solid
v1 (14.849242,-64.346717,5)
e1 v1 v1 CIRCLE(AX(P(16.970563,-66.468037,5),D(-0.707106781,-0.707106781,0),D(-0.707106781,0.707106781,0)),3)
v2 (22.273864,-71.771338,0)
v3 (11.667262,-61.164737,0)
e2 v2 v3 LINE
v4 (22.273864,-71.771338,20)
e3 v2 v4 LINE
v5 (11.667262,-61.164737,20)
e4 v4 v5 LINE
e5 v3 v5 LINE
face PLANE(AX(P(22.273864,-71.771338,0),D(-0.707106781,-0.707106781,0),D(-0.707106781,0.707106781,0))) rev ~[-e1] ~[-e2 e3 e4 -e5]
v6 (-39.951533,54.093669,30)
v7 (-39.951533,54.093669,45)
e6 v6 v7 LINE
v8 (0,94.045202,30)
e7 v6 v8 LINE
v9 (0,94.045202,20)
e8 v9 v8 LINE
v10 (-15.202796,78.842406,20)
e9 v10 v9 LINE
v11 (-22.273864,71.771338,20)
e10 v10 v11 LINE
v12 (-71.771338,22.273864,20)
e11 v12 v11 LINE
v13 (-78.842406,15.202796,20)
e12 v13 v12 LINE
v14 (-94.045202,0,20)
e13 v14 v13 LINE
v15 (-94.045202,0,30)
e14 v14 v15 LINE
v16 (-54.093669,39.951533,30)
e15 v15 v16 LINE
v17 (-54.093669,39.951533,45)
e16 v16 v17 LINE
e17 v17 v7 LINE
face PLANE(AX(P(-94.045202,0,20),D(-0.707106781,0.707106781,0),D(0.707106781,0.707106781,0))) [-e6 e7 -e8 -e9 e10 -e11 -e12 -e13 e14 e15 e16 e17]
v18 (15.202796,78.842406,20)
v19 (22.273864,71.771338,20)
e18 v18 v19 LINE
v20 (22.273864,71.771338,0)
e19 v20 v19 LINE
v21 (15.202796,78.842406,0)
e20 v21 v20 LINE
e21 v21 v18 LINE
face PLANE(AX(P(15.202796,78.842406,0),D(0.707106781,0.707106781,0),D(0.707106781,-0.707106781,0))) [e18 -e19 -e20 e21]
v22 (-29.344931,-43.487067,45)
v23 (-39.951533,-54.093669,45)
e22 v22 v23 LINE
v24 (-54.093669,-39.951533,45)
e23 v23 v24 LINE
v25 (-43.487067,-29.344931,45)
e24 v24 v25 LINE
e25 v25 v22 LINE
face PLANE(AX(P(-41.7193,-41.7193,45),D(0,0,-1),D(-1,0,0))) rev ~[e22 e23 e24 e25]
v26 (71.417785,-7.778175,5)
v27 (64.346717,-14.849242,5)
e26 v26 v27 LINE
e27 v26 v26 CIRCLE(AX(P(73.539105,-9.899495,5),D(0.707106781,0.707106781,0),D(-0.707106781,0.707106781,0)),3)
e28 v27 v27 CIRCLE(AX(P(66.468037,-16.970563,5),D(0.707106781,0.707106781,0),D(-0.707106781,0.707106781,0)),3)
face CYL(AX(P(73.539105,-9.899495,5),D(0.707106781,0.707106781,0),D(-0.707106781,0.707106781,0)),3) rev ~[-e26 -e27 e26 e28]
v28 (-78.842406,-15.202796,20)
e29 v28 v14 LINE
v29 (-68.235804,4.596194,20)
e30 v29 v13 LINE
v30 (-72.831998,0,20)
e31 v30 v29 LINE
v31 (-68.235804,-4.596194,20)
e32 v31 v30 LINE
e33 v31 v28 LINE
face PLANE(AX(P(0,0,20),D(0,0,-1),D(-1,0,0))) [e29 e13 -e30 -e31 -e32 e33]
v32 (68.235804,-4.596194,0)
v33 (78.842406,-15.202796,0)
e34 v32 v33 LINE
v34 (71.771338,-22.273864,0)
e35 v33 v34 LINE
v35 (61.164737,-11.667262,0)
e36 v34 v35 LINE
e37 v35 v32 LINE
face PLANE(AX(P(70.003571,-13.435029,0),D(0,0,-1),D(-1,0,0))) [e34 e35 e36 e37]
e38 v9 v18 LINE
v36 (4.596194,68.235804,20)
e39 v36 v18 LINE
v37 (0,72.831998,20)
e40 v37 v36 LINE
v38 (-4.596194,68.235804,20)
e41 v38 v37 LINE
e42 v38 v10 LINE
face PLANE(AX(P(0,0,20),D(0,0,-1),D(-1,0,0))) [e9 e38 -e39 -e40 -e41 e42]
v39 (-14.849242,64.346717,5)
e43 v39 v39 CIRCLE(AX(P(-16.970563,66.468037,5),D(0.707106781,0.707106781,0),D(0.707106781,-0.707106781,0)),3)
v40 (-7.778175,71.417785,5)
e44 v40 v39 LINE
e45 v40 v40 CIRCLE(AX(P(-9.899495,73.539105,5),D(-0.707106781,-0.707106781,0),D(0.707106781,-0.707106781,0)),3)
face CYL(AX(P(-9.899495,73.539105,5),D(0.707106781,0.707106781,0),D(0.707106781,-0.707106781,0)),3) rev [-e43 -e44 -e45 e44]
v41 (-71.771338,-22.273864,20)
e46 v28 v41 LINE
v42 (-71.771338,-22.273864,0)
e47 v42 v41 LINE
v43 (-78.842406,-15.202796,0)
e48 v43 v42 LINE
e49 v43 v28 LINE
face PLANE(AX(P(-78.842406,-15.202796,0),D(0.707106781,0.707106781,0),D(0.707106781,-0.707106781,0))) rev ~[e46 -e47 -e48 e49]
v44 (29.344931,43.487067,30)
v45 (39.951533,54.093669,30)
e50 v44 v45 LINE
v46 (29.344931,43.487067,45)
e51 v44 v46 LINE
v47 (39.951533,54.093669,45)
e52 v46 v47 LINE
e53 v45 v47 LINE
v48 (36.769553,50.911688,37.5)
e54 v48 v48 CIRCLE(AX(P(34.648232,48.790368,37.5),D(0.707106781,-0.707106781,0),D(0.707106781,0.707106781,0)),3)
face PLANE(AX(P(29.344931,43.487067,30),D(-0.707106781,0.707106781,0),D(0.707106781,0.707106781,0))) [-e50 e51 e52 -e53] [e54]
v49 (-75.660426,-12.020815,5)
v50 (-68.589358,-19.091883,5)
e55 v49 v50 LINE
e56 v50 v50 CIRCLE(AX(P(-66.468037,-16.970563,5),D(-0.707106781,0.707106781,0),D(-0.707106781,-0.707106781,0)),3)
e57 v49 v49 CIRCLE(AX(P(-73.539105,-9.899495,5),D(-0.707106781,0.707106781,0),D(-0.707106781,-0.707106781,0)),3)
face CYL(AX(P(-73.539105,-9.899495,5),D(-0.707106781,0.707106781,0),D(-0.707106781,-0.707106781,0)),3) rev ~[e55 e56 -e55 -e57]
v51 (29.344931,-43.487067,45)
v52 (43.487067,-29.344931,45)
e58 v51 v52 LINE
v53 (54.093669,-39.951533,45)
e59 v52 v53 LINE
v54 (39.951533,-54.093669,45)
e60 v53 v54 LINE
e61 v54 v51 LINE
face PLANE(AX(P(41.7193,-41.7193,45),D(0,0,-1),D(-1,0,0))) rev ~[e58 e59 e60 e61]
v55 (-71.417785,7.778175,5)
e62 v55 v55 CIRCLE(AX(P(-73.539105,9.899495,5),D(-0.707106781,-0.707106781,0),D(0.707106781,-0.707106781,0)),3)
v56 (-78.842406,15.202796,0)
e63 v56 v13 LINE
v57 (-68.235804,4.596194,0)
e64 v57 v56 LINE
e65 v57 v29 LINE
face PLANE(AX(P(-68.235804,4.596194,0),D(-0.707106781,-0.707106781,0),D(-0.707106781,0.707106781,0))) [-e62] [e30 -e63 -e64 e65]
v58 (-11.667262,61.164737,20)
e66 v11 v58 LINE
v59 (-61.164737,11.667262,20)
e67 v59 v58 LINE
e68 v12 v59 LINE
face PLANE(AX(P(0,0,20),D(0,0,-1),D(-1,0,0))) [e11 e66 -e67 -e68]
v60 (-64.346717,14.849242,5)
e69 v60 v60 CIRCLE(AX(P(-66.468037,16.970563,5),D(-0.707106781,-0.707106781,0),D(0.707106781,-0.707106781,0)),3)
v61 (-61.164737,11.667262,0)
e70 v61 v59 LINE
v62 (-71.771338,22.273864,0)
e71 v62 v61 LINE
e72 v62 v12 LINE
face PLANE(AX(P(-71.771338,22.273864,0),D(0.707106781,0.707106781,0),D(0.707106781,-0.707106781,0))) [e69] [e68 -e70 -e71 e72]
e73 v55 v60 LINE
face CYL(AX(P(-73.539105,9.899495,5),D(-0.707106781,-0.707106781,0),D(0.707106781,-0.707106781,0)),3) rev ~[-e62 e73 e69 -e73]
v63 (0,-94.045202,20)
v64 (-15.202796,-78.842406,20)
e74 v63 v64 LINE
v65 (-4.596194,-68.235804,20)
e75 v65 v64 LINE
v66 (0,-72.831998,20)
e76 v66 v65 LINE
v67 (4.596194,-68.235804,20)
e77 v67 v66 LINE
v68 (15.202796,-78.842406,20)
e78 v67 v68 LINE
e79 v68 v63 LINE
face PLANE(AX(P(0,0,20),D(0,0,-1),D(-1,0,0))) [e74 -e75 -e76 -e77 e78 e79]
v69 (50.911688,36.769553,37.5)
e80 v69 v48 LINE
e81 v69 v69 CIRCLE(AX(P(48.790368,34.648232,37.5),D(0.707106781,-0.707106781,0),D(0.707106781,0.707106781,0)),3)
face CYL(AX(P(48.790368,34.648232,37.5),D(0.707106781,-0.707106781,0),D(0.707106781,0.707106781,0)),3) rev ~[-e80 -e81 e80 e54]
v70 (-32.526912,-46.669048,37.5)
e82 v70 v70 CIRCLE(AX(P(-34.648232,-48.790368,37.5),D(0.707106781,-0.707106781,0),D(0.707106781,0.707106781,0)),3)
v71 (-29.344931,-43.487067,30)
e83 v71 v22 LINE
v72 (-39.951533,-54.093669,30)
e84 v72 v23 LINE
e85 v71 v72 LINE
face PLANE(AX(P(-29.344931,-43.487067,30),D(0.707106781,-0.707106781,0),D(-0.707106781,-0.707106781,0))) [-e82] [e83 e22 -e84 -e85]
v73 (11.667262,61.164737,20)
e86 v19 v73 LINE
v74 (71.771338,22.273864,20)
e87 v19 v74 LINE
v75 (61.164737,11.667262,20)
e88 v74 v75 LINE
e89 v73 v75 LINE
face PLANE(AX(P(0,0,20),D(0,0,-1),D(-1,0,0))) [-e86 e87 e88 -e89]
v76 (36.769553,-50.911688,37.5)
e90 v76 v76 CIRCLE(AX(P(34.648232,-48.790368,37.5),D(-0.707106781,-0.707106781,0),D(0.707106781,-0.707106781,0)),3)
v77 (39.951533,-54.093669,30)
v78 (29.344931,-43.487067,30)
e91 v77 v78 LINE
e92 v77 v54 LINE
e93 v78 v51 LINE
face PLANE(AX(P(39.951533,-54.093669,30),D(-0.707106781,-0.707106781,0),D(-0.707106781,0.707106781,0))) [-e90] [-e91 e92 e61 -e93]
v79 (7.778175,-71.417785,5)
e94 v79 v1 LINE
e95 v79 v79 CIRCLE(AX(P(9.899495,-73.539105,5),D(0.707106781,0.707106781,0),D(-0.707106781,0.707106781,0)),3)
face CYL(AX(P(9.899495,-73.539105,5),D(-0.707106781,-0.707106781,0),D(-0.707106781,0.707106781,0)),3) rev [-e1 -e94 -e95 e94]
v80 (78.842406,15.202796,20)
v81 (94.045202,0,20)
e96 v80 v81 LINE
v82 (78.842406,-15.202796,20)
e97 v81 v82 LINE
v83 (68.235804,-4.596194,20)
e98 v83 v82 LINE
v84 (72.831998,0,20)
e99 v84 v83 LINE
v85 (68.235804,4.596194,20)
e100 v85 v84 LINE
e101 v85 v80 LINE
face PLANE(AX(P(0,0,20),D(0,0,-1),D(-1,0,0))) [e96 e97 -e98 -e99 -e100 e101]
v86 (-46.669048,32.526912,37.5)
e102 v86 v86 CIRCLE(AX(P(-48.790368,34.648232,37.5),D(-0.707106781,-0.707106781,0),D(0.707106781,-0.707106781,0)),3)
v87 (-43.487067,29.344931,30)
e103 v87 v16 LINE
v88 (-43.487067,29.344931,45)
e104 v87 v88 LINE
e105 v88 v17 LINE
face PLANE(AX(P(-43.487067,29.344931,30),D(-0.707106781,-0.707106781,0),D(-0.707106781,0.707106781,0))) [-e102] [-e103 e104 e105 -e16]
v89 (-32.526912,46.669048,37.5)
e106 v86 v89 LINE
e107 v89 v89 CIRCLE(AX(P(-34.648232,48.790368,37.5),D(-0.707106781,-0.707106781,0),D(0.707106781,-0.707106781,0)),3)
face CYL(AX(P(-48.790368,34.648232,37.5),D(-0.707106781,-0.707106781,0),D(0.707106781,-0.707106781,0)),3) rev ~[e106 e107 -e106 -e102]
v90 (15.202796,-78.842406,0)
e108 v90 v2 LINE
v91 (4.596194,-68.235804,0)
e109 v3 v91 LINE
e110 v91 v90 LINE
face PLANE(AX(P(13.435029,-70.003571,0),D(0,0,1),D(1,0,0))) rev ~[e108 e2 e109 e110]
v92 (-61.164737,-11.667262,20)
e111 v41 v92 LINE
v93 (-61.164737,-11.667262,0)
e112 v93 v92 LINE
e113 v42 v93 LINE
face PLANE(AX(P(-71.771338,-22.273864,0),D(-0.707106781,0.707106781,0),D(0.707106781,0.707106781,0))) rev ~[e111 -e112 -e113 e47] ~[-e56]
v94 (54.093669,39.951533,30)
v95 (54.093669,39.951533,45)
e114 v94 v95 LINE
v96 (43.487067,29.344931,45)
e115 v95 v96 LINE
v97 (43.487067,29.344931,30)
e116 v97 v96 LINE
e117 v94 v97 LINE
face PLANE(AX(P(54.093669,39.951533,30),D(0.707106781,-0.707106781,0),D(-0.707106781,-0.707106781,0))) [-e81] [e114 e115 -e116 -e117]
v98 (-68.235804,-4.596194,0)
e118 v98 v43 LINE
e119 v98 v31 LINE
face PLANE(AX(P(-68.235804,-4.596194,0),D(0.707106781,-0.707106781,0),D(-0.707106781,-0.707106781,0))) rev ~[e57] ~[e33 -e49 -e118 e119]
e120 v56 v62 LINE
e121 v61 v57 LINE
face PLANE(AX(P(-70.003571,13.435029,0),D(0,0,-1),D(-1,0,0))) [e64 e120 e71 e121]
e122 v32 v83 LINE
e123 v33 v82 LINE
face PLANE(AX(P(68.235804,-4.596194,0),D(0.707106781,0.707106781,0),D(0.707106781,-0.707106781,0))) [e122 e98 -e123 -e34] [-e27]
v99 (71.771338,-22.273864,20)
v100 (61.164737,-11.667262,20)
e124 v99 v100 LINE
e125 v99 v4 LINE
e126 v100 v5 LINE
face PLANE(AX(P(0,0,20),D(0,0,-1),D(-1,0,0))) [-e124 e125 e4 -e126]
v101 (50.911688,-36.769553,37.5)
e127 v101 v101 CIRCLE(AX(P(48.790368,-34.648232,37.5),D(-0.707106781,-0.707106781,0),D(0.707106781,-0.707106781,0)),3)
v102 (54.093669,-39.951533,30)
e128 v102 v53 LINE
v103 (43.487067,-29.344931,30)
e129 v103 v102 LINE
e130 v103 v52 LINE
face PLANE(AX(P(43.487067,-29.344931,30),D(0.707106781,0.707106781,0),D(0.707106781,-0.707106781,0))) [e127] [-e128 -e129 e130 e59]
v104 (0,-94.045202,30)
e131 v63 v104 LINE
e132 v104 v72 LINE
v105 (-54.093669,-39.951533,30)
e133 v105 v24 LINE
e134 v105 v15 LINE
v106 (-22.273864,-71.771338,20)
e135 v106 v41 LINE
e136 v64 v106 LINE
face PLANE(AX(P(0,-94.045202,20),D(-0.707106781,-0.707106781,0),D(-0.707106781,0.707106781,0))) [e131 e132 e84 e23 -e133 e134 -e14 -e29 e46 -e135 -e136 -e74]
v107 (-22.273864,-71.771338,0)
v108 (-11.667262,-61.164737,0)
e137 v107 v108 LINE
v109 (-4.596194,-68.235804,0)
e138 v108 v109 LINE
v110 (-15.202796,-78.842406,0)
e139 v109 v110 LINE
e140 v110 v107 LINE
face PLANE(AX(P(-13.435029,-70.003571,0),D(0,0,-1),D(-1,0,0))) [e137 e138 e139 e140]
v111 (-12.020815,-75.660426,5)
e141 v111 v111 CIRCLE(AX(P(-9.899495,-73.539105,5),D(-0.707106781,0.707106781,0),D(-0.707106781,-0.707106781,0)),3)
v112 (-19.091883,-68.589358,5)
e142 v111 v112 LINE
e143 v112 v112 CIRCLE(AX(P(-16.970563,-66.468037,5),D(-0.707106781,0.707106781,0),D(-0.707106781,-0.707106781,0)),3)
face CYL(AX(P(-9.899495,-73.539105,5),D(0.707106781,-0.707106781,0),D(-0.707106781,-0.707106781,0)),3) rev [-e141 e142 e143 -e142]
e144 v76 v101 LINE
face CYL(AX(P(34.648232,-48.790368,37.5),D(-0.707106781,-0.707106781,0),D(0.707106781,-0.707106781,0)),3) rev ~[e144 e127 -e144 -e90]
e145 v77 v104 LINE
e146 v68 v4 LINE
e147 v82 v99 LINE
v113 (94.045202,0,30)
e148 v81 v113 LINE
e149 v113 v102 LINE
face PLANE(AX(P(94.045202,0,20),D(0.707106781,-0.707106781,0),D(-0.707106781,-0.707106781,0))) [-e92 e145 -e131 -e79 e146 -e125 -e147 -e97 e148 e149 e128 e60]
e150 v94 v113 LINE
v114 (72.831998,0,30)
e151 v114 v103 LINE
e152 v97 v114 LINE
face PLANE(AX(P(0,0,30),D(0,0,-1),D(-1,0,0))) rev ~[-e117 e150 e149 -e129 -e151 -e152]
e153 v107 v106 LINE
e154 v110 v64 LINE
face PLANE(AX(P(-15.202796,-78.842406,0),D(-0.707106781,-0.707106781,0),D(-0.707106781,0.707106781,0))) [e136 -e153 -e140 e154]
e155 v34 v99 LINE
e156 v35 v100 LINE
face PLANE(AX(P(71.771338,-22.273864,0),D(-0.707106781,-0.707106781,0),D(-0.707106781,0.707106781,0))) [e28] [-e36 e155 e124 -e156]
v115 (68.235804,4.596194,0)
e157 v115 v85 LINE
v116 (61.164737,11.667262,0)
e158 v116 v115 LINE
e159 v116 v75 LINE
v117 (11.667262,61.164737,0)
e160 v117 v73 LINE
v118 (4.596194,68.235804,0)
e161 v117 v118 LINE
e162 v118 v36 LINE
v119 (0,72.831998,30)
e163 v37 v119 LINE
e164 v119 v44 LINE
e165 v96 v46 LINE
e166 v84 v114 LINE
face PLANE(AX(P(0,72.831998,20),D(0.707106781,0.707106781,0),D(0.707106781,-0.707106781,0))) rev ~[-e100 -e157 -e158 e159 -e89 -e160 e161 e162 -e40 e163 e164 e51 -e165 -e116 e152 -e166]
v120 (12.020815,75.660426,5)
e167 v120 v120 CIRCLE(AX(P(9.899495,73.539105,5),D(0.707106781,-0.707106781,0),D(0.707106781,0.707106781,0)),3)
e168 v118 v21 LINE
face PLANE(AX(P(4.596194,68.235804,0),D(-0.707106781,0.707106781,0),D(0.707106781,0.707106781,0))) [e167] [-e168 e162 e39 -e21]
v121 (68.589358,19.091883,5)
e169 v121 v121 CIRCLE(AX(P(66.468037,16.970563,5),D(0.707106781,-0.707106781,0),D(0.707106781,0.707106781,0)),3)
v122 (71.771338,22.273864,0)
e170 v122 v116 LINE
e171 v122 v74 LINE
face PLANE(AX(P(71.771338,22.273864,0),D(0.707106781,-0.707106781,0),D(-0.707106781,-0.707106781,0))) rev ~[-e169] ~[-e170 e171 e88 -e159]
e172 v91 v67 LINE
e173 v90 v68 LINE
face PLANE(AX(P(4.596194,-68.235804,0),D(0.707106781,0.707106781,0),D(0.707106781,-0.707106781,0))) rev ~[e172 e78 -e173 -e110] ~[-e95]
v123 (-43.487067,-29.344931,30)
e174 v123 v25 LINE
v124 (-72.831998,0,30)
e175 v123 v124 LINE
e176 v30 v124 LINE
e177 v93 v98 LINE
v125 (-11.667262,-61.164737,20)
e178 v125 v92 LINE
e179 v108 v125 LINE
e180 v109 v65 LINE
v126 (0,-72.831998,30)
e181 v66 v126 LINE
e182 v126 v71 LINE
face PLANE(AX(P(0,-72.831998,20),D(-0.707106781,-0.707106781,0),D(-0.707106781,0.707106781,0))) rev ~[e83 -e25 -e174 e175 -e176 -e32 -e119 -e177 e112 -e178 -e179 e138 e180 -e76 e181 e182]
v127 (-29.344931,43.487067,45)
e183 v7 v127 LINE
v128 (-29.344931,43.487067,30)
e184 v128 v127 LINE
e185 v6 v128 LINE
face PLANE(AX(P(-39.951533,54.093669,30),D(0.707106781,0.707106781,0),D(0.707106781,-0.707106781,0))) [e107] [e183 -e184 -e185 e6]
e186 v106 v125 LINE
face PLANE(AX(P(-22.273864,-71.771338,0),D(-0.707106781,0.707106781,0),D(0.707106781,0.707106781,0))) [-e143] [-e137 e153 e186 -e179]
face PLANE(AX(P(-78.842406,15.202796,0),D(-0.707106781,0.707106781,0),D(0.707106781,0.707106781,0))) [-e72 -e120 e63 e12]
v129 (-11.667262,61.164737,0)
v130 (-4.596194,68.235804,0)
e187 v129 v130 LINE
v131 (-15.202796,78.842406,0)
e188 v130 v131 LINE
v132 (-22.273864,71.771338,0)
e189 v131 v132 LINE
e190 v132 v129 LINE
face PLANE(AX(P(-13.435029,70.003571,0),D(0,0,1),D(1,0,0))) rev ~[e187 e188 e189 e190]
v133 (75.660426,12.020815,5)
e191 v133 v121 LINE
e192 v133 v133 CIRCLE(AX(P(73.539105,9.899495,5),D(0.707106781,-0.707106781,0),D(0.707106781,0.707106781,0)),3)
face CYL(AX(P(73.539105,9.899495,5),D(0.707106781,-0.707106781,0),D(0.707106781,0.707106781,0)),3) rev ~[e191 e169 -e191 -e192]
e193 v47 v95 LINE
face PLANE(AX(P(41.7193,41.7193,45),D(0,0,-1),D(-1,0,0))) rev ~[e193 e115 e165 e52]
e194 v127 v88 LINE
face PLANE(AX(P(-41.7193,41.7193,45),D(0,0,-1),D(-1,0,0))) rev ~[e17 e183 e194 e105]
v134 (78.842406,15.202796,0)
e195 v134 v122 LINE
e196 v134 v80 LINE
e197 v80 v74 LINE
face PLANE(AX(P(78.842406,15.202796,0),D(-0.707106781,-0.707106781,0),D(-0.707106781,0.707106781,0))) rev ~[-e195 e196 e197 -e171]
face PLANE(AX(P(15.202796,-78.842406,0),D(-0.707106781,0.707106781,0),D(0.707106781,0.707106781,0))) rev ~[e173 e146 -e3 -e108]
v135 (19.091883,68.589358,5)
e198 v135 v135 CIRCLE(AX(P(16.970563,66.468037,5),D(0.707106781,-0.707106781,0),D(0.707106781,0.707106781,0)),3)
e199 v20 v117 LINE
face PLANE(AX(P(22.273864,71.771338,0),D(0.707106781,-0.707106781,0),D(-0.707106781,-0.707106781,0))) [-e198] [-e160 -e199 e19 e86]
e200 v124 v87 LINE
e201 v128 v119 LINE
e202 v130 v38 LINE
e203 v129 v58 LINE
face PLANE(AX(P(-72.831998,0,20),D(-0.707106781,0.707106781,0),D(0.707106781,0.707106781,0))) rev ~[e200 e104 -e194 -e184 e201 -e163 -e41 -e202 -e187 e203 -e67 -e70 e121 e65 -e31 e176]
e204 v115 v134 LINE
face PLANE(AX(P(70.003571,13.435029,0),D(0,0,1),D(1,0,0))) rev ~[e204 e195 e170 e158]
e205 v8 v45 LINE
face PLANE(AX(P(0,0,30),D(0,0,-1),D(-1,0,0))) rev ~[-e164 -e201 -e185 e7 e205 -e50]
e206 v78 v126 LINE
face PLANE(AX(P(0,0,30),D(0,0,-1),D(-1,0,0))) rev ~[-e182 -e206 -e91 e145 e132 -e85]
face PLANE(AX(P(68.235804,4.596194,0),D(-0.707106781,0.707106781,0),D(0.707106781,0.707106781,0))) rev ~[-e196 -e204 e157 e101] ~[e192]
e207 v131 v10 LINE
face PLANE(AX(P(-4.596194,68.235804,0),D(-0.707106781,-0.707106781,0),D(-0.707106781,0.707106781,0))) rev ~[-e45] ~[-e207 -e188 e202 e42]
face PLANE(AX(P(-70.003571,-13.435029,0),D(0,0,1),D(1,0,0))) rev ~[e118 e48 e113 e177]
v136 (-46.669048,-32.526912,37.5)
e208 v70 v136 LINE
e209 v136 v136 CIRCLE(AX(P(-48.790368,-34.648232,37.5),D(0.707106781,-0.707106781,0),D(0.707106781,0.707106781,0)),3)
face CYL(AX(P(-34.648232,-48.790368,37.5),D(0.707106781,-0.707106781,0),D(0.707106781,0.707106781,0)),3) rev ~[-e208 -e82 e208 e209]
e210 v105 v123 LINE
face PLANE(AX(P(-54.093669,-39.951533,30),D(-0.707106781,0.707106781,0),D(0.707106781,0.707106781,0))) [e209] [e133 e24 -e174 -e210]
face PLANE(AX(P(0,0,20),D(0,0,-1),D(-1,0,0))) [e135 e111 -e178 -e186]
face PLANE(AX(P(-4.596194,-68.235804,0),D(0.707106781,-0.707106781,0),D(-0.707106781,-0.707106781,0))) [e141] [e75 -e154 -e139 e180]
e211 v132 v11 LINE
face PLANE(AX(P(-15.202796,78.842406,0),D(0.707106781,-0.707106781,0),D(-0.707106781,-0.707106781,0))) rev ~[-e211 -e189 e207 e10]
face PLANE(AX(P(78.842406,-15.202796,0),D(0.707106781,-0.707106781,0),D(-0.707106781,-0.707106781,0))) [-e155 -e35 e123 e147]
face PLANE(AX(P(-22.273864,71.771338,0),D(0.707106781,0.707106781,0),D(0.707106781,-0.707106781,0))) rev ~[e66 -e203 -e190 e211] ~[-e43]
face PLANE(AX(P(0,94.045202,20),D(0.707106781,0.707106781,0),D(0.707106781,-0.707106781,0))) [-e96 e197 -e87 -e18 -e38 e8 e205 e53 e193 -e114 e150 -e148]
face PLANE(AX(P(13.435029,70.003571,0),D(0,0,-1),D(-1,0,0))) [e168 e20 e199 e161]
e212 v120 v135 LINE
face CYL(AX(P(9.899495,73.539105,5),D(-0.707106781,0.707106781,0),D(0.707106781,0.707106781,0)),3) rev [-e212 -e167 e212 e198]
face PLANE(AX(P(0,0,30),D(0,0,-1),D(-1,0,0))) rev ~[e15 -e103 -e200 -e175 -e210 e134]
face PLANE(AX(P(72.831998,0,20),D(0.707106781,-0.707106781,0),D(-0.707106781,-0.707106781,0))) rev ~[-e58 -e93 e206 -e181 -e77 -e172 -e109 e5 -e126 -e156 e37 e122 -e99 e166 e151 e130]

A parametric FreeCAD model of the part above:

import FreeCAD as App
import Part
import Sketcher
from FreeCAD import Vector
Q = App.Units.Quantity

doc = App.newDocument("Part")
body = doc.addObject("PartDesign::Body", "Body")

# Sketch on XY plane
sketch1 = doc.addObject("Sketcher::SketchObject", "Sketch")
body.addObject(sketch1)
sketch1.AttachmentSupport = (doc.XY_Plane, [""])
sketch1.MapMode = "FlatFace"
sketch1.addGeometry(Part.LineSegment(Vector(-61, 12, 0), Vector(-72, 22, 0)), False)
sketch1.addGeometry(Part.LineSegment(Vector(-72, 22, 0), Vector(-79, 15, 0)), False)
sketch1.addGeometry(Part.LineSegment(Vector(-79, 15, 0), Vector(-68, 5, 0)), False)
sketch1.addGeometry(Part.LineSegment(Vector(-68, 5, 0), Vector(-61, 12, 0)), False)
sketch1.addConstraint(Sketcher.Constraint("Coincident", 0, 2, 1, 1))
sketch1.addConstraint(Sketcher.Constraint("Coincident", 1, 2, 2, 1))
sketch1.addConstraint(Sketcher.Constraint("Coincident", 2, 2, 3, 1))
sketch1.addConstraint(Sketcher.Constraint("Coincident", 3, 2, 0, 1))
sketch1.addConstraint(Sketcher.Constraint("Perpendicular", 0, 1))
sketch1.addConstraint(Sketcher.Constraint("Perpendicular", 1, 2))
sketch1.addConstraint(Sketcher.Constraint("Perpendicular", 2, 3))
sketch1.addConstraint(Sketcher.Constraint("Angle", 0, Q("135 deg")))
sketch1.addConstraint(Sketcher.Constraint("Distance", 0, 15.0))
sketch1.addConstraint(Sketcher.Constraint("Distance", 1, 10.0))
sketch1.addConstraint(Sketcher.Constraint("DistanceX", 0, 2, -1, 1, 71.771338))
sketch1.addConstraint(Sketcher.Constraint("DistanceY", -1, 1, 3, 2, 11.667262))
pad1 = doc.addObject("PartDesign::Pad", "Pad")
body.addObject(pad1)
pad1.Profile = sketch1
pad1.Length = 20
body2 = doc.addObject("PartDesign::Body", "Body001")

# Sketch on XY plane
sketch2 = doc.addObject("Sketcher::SketchObject", "Sketch001")
body2.addObject(sketch2)
sketch2.AttachmentSupport = (doc.getObject("XY_Plane001"), [""])
sketch2.MapMode = "FlatFace"
sketch2.addGeometry(Part.LineSegment(Vector(-12, 61, 0), Vector(-5, 68, 0)), False)
sketch2.addGeometry(Part.LineSegment(Vector(-5, 68, 0), Vector(-15, 79, 0)), False)
sketch2.addGeometry(Part.LineSegment(Vector(-15, 79, 0), Vector(-22, 72, 0)), False)
sketch2.addGeometry(Part.LineSegment(Vector(-22, 72, 0), Vector(-12, 61, 0)), False)
sketch2.addConstraint(Sketcher.Constraint("Coincident", 0, 2, 1, 1))
sketch2.addConstraint(Sketcher.Constraint("Coincident", 1, 2, 2, 1))
sketch2.addConstraint(Sketcher.Constraint("Coincident", 2, 2, 3, 1))
sketch2.addConstraint(Sketcher.Constraint("Coincident", 3, 2, 0, 1))
sketch2.addConstraint(Sketcher.Constraint("Perpendicular", 0, 1))
sketch2.addConstraint(Sketcher.Constraint("Perpendicular", 1, 2))
sketch2.addConstraint(Sketcher.Constraint("Perpendicular", 2, 3))
sketch2.addConstraint(Sketcher.Constraint("Angle", 0, Q("45 deg")))
sketch2.addConstraint(Sketcher.Constraint("Distance", 0, 10.0))
sketch2.addConstraint(Sketcher.Constraint("Distance", 1, 15.0))
sketch2.addConstraint(Sketcher.Constraint("DistanceY", -1, 1, 2, 2, 71.771338))
sketch2.addConstraint(Sketcher.Constraint("DistanceX", 3, 2, -1, 1, 11.667262))
pad2 = doc.addObject("PartDesign::Pad", "Pad001")
body2.addObject(pad2)
pad2.Profile = sketch2
pad2.Length = 20
body3 = doc.addObject("PartDesign::Body", "Body002")

# Sketch on XY plane
sketch3 = doc.addObject("Sketcher::SketchObject", "Sketch002")
body3.addObject(sketch3)
sketch3.AttachmentSupport = (doc.getObject("XY_Plane002"), [""])
sketch3.MapMode = "FlatFace"
sketch3.addGeometry(Part.LineSegment(Vector(12, 61, 0), Vector(22, 72, 0)), False)
sketch3.addGeometry(Part.LineSegment(Vector(22, 72, 0), Vector(15, 79, 0)), False)
sketch3.addGeometry(Part.LineSegment(Vector(15, 79, 0), Vector(5, 68, 0)), False)
sketch3.addGeometry(Part.LineSegment(Vector(5, 68, 0), Vector(12, 61, 0)), False)
sketch3.addConstraint(Sketcher.Constraint("Coincident", 0, 2, 1, 1))
sketch3.addConstraint(Sketcher.Constraint("Coincident", 1, 2, 2, 1))
sketch3.addConstraint(Sketcher.Constraint("Coincident", 2, 2, 3, 1))
sketch3.addConstraint(Sketcher.Constraint("Coincident", 3, 2, 0, 1))
sketch3.addConstraint(Sketcher.Constraint("Perpendicular", 0, 1))
sketch3.addConstraint(Sketcher.Constraint("Perpendicular", 1, 2))
sketch3.addConstraint(Sketcher.Constraint("Perpendicular", 2, 3))
sketch3.addConstraint(Sketcher.Constraint("Angle", 0, Q("45 deg")))
sketch3.addConstraint(Sketcher.Constraint("Distance", 0, 15.0))
sketch3.addConstraint(Sketcher.Constraint("Distance", 1, 10.0))
sketch3.addConstraint(Sketcher.Constraint("DistanceY", -1, 1, 0, 2, 71.771338))
sketch3.addConstraint(Sketcher.Constraint("DistanceX", -1, 1, 3, 2, 11.667262))
pad3 = doc.addObject("PartDesign::Pad", "Pad002")
body3.addObject(pad3)
pad3.Profile = sketch3
pad3.Length = 20
body4 = doc.addObject("PartDesign::Body", "Body003")

# Sketch on XY plane
sketch4 = doc.addObject("Sketcher::SketchObject", "Sketch003")
body4.addObject(sketch4)
sketch4.AttachmentSupport = (doc.getObject("XY_Plane003"), [""])
sketch4.MapMode = "FlatFace"
sketch4.addGeometry(Part.LineSegment(Vector(61, 12, 0), Vector(68, 5, 0)), False)
sketch4.addGeometry(Part.LineSegment(Vector(68, 5, 0), Vector(79, 15, 0)), False)
sketch4.addGeometry(Part.LineSegment(Vector(79, 15, 0), Vector(72, 22, 0)), False)
sketch4.addGeometry(Part.LineSegment(Vector(72, 22, 0), Vector(61, 12, 0)), False)
sketch4.addConstraint(Sketcher.Constraint("Coincident", 0, 2, 1, 1))
sketch4.addConstraint(Sketcher.Constraint("Coincident", 1, 2, 2, 1))
sketch4.addConstraint(Sketcher.Constraint("Coincident", 2, 2, 3, 1))
sketch4.addConstraint(Sketcher.Constraint("Coincident", 3, 2, 0, 1))
sketch4.addConstraint(Sketcher.Constraint("Perpendicular", 0, 1))
sketch4.addConstraint(Sketcher.Constraint("Perpendicular", 1, 2))
sketch4.addConstraint(Sketcher.Constraint("Perpendicular", 2, 3))
sketch4.addConstraint(Sketcher.Constraint("Angle", 0, Q("-45 deg")))
sketch4.addConstraint(Sketcher.Constraint("Distance", 0, 10.0))
sketch4.addConstraint(Sketcher.Constraint("Distance", 1, 15.0))
sketch4.addConstraint(Sketcher.Constraint("DistanceX", -1, 1, 2, 2, 71.771338))
sketch4.addConstraint(Sketcher.Constraint("DistanceY", -1, 1, 3, 2, 11.667262))
pad4 = doc.addObject("PartDesign::Pad", "Pad003")
body4.addObject(pad4)
pad4.Profile = sketch4
pad4.Length = 20
body5 = doc.addObject("PartDesign::Body", "Body004")

# Sketch on XY plane
sketch5 = doc.addObject("Sketcher::SketchObject", "Sketch004")
body5.addObject(sketch5)
sketch5.AttachmentSupport = (doc.getObject("XY_Plane004"), [""])
sketch5.MapMode = "FlatFace"
sketch5.addGeometry(Part.LineSegment(Vector(61, -12, 0), Vector(72, -22, 0)), False)
sketch5.addGeometry(Part.LineSegment(Vector(72, -22, 0), Vector(79, -15, 0)), False)
sketch5.addGeometry(Part.LineSegment(Vector(79, -15, 0), Vector(68, -5, 0)), False)
sketch5.addGeometry(Part.LineSegment(Vector(68, -5, 0), Vector(61, -12, 0)), False)
sketch5.addConstraint(Sketcher.Constraint("Coincident", 0, 2, 1, 1))
sketch5.addConstraint(Sketcher.Constraint("Coincident", 1, 2, 2, 1))
sketch5.addConstraint(Sketcher.Constraint("Coincident", 2, 2, 3, 1))
sketch5.addConstraint(Sketcher.Constraint("Coincident", 3, 2, 0, 1))
sketch5.addConstraint(Sketcher.Constraint("Perpendicular", 0, 1))
sketch5.addConstraint(Sketcher.Constraint("Perpendicular", 1, 2))
sketch5.addConstraint(Sketcher.Constraint("Perpendicular", 2, 3))
sketch5.addConstraint(Sketcher.Constraint("Angle", 0, Q("-45 deg")))
sketch5.addConstraint(Sketcher.Constraint("Distance", 0, 15.0))
sketch5.addConstraint(Sketcher.Constraint("Distance", 1, 10.0))
sketch5.addConstraint(Sketcher.Constraint("DistanceX", -1, 1, 0, 2, 71.771338))
sketch5.addConstraint(Sketcher.Constraint("DistanceY", 3, 2, -1, 1, 11.667262))
pad5 = doc.addObject("PartDesign::Pad", "Pad004")
body5.addObject(pad5)
pad5.Profile = sketch5
pad5.Length = 20
body6 = doc.addObject("PartDesign::Body", "Body005")

# Sketch on XY plane
sketch6 = doc.addObject("Sketcher::SketchObject", "Sketch005")
body6.addObject(sketch6)
sketch6.AttachmentSupport = (doc.getObject("XY_Plane005"), [""])
sketch6.MapMode = "FlatFace"
sketch6.addGeometry(Part.LineSegment(Vector(12, -61, 0), Vector(5, -68, 0)), False)
sketch6.addGeometry(Part.LineSegment(Vector(5, -68, 0), Vector(15, -79, 0)), False)
sketch6.addGeometry(Part.LineSegment(Vector(15, -79, 0), Vector(22, -72, 0)), False)
sketch6.addGeometry(Part.LineSegment(Vector(22, -72, 0), Vector(12, -61, 0)), False)
sketch6.addConstraint(Sketcher.Constraint("Coincident", 0, 2, 1, 1))
sketch6.addConstraint(Sketcher.Constraint("Coincident", 1, 2, 2, 1))
sketch6.addConstraint(Sketcher.Constraint("Coincident", 2, 2, 3, 1))
sketch6.addConstraint(Sketcher.Constraint("Coincident", 3, 2, 0, 1))
sketch6.addConstraint(Sketcher.Constraint("Perpendicular", 0, 1))
sketch6.addConstraint(Sketcher.Constraint("Perpendicular", 1, 2))
sketch6.addConstraint(Sketcher.Constraint("Perpendicular", 2, 3))
sketch6.addConstraint(Sketcher.Constraint("Angle", 0, Q("-135 deg")))
sketch6.addConstraint(Sketcher.Constraint("Distance", 0, 10.0))
sketch6.addConstraint(Sketcher.Constraint("Distance", 1, 15.0))
sketch6.addConstraint(Sketcher.Constraint("DistanceY", 2, 2, -1, 1, 71.771338))
sketch6.addConstraint(Sketcher.Constraint("DistanceX", -1, 1, 3, 2, 11.667262))
pad6 = doc.addObject("PartDesign::Pad", "Pad005")
body6.addObject(pad6)
pad6.Profile = sketch6
pad6.Length = 20
body7 = doc.addObject("PartDesign::Body", "Body006")

# Sketch on XY plane
sketch7 = doc.addObject("Sketcher::SketchObject", "Sketch006")
body7.addObject(sketch7)
sketch7.AttachmentSupport = (doc.getObject("XY_Plane006"), [""])
sketch7.MapMode = "FlatFace"
sketch7.addGeometry(Part.LineSegment(Vector(-12, -61, 0), Vector(-22, -72, 0)), False)
sketch7.addGeometry(Part.LineSegment(Vector(-22, -72, 0), Vector(-15, -79, 0)), False)
sketch7.addGeometry(Part.LineSegment(Vector(-15, -79, 0), Vector(-5, -68, 0)), False)
sketch7.addGeometry(Part.LineSegment(Vector(-5, -68, 0), Vector(-12, -61, 0)), False)
sketch7.addConstraint(Sketcher.Constraint("Coincident", 0, 2, 1, 1))
sketch7.addConstraint(Sketcher.Constraint("Coincident", 1, 2, 2, 1))
sketch7.addConstraint(Sketcher.Constraint("Coincident", 2, 2, 3, 1))
sketch7.addConstraint(Sketcher.Constraint("Coincident", 3, 2, 0, 1))
sketch7.addConstraint(Sketcher.Constraint("Perpendicular", 0, 1))
sketch7.addConstraint(Sketcher.Constraint("Perpendicular", 1, 2))
sketch7.addConstraint(Sketcher.Constraint("Perpendicular", 2, 3))
sketch7.addConstraint(Sketcher.Constraint("Angle", 0, Q("-135 deg")))
sketch7.addConstraint(Sketcher.Constraint("Distance", 0, 15.0))
sketch7.addConstraint(Sketcher.Constraint("Distance", 1, 10.0))
sketch7.addConstraint(Sketcher.Constraint("DistanceY", 0, 2, -1, 1, 71.771338))
sketch7.addConstraint(Sketcher.Constraint("DistanceX", 3, 2, -1, 1, 11.667262))
pad7 = doc.addObject("PartDesign::Pad", "Pad006")
body7.addObject(pad7)
pad7.Profile = sketch7
pad7.Length = 20
body8 = doc.addObject("PartDesign::Body", "Body007")

# Sketch on XY plane
sketch8 = doc.addObject("Sketcher::SketchObject", "Sketch007")
body8.addObject(sketch8)
sketch8.AttachmentSupport = (doc.getObject("XY_Plane007"), [""])
sketch8.MapMode = "FlatFace"
sketch8.addGeometry(Part.LineSegment(Vector(-61, -12, 0), Vector(-68, -5, 0)), False)
sketch8.addGeometry(Part.LineSegment(Vector(-68, -5, 0), Vector(-79, -15, 0)), False)
sketch8.addGeometry(Part.LineSegment(Vector(-79, -15, 0), Vector(-72, -22, 0)), False)
sketch8.addGeometry(Part.LineSegment(Vector(-72, -22, 0), Vector(-61, -12, 0)), False)
sketch8.addConstraint(Sketcher.Constraint("Coincident", 0, 2, 1, 1))
sketch8.addConstraint(Sketcher.Constraint("Coincident", 1, 2, 2, 1))
sketch8.addConstraint(Sketcher.Constraint("Coincident", 2, 2, 3, 1))
sketch8.addConstraint(Sketcher.Constraint("Coincident", 3, 2, 0, 1))
sketch8.addConstraint(Sketcher.Constraint("Perpendicular", 0, 1))
sketch8.addConstraint(Sketcher.Constraint("Perpendicular", 1, 2))
sketch8.addConstraint(Sketcher.Constraint("Perpendicular", 2, 3))
sketch8.addConstraint(Sketcher.Constraint("Angle", 0, Q("135 deg")))
sketch8.addConstraint(Sketcher.Constraint("Distance", 0, 10.0))
sketch8.addConstraint(Sketcher.Constraint("Distance", 1, 15.0))
sketch8.addConstraint(Sketcher.Constraint("DistanceX", 2, 2, -1, 1, 71.771338))
sketch8.addConstraint(Sketcher.Constraint("DistanceY", 3, 2, -1, 1, 11.667262))
pad8 = doc.addObject("PartDesign::Pad", "Pad007")
body8.addObject(pad8)
pad8.Profile = sketch8
pad8.Length = 20
body.AllowCompound = True
doc.recompute()

boolean = doc.addObject("PartDesign::Boolean", "Boolean")
body.addObject(boolean)
boolean.Type = "Fuse"
boolean.addObjects([body2])
doc.recompute()

boolean2 = doc.addObject("PartDesign::Boolean", "Boolean001")
body.addObject(boolean2)
boolean2.Type = "Fuse"
boolean2.addObjects([body3])
doc.recompute()

boolean3 = doc.addObject("PartDesign::Boolean", "Boolean002")
body.addObject(boolean3)
boolean3.Type = "Fuse"
boolean3.addObjects([body4])
doc.recompute()

boolean4 = doc.addObject("PartDesign::Boolean", "Boolean003")
body.addObject(boolean4)
boolean4.Type = "Fuse"
boolean4.addObjects([body5])
doc.recompute()

boolean5 = doc.addObject("PartDesign::Boolean", "Boolean004")
body.addObject(boolean5)
boolean5.Type = "Fuse"
boolean5.addObjects([body6])
doc.recompute()

boolean6 = doc.addObject("PartDesign::Boolean", "Boolean005")
body.addObject(boolean6)
boolean6.Type = "Fuse"
boolean6.addObjects([body7])
doc.recompute()

boolean7 = doc.addObject("PartDesign::Boolean", "Boolean006")
body.addObject(boolean7)
boolean7.Type = "Fuse"
boolean7.addObjects([body8])

# Sketch on XY plane
sketch9 = doc.addObject("Sketcher::SketchObject", "Sketch008")
body.addObject(sketch9)
sketch9.AttachmentSupport = (doc.XY_Plane, [""])
sketch9.MapMode = "FlatFace"
sketch9.AttachmentOffset = App.Placement(Vector(0, 0, 20), App.Rotation())
sketch9.addGeometry(Part.LineSegment(Vector(94, 0, 0), Vector(0, 94, 0)), False)
sketch9.addGeometry(Part.LineSegment(Vector(0, 94, 0), Vector(-94, 0, 0)), False)
sketch9.addGeometry(Part.LineSegment(Vector(-94, 0, 0), Vector(0, -94, 0)), False)
sketch9.addGeometry(Part.LineSegment(Vector(0, -94, 0), Vector(94, 0, 0)), False)
sketch9.addGeometry(Part.LineSegment(Vector(0, 73, 0), Vector(73, 0, 0)), False)
sketch9.addGeometry(Part.LineSegment(Vector(73, 0, 0), Vector(0, -73, 0)), False)
sketch9.addGeometry(Part.LineSegment(Vector(0, -73, 0), Vector(-73, 0, 0)), False)
sketch9.addGeometry(Part.LineSegment(Vector(-73, 0, 0), Vector(0, 73, 0)), False)
sketch9.addConstraint(Sketcher.Constraint("Coincident", 0, 2, 1, 1))
sketch9.addConstraint(Sketcher.Constraint("Coincident", 1, 2, 2, 1))
sketch9.addConstraint(Sketcher.Constraint("Coincident", 2, 2, 3, 1))
sketch9.addConstraint(Sketcher.Constraint("Coincident", 3, 2, 0, 1))
sketch9.addConstraint(Sketcher.Constraint("Coincident", 4, 2, 5, 1))
sketch9.addConstraint(Sketcher.Constraint("Coincident", 5, 2, 6, 1))
sketch9.addConstraint(Sketcher.Constraint("Coincident", 6, 2, 7, 1))
sketch9.addConstraint(Sketcher.Constraint("Coincident", 7, 2, 4, 1))
sketch9.addConstraint(Sketcher.Constraint("Symmetric", 0, 2, 2, 2, -1, 1))
sketch9.addConstraint(Sketcher.Constraint("Symmetric", 1, 2, 3, 2, -1, 1))
sketch9.addConstraint(Sketcher.Constraint("Symmetric", 4, 2, 6, 2, -1, 1))
sketch9.addConstraint(Sketcher.Constraint("Symmetric", 5, 2, 7, 2, -1, 1))
sketch9.addConstraint(Sketcher.Constraint("PointOnObject", 0, 2, -2))
sketch9.addConstraint(Sketcher.Constraint("PointOnObject", 1, 2, -1))
sketch9.addConstraint(Sketcher.Constraint("PointOnObject", 4, 2, -1))
sketch9.addConstraint(Sketcher.Constraint("PointOnObject", 5, 2, -2))
sketch9.addConstraint(Sketcher.Constraint("Perpendicular", 0, 1))
sketch9.addConstraint(Sketcher.Constraint("Perpendicular", 3, 4))
sketch9.addConstraint(Sketcher.Constraint("Distance", 0, 133.0))
sketch9.addConstraint(Sketcher.Constraint("Distance", 4, 103.0))
pad9 = doc.addObject("PartDesign::Pad", "Pad008")
body.addObject(pad9)
pad9.Profile = sketch9
pad9.Length = 10

# Sketch on an angled plane
sketch10 = doc.addObject("Sketcher::SketchObject", "Sketch009")
body.addObject(sketch10)
sketch10.Placement = App.Placement(Vector(31.819805, 31.819805, 0), App.Rotation(Vector(0, 0, -1), Vector(-0.707106781, 0.707106781, 0), Vector(0.707106781, 0.707106781, 0), "ZXY"))
sketch10.addGeometry(Part.Circle(Vector(-5, -59, 0), Vector(0, 0, 1), 3), False)
sketch10.addConstraint(Sketcher.Constraint("Diameter", 0, 6.0))
sketch10.addConstraint(Sketcher.Constraint("DistanceX", 0, 3, -1, 1, 5.0))
sketch10.addConstraint(Sketcher.Constraint("DistanceY", 0, 3, -1, 1, 59.0))
pocket1 = doc.addObject("PartDesign::Pocket", "Pocket")
body.addObject(pocket1)
pocket1.Profile = sketch10
pocket1.Length = 80

# Sketch on an angled plane
sketch11 = doc.addObject("Sketcher::SketchObject", "Sketch010")
body.addObject(sketch11)
sketch11.Placement = App.Placement(Vector(31.819805, -31.819805, 0), App.Rotation(Vector(0, 0, -1), Vector(0.707106781, 0.707106781, 0), Vector(0.707106781, -0.707106781, 0), "ZXY"))
sketch11.addGeometry(Part.Circle(Vector(-5, 59, 0), Vector(0, 0, 1), 3), False)
sketch11.addConstraint(Sketcher.Constraint("Diameter", 0, 6.0))
sketch11.addConstraint(Sketcher.Constraint("DistanceX", 0, 3, -1, 1, 5.0))
sketch11.addConstraint(Sketcher.Constraint("DistanceY", -1, 1, 0, 3, 59.0))
pocket2 = doc.addObject("PartDesign::Pocket", "Pocket001")
body.addObject(pocket2)
pocket2.Profile = sketch11
pocket2.Length = 10
doc.recompute()

datumplane = doc.addObject("PartDesign::Plane", "DatumPlane")
body.addObject(datumplane)
datumplane.Placement = App.Placement(Vector(0, 0, 0), App.Rotation(Vector(-0.707106781, -0.707106781, 0), Vector(0, 0, -1), Vector(0.707106781, -0.707106781, 0), "ZXY"))
mirrored = doc.addObject("PartDesign::Mirrored", "Mirrored")
body.addObject(mirrored)
mirrored.Originals = [pocket1, pocket2]
mirrored.MirrorPlane = (datumplane, [""])
body.Tip = mirrored
doc.recompute()

datumplane2 = doc.addObject("PartDesign::Plane", "DatumPlane001")
body.addObject(datumplane2)
datumplane2.Placement = App.Placement(Vector(0, 0, 0), App.Rotation(Vector(-0.707106781, 0.707106781, 0), Vector(0, 0, -1), Vector(-0.707106781, -0.707106781, 0), "ZXY"))
mirrored2 = doc.addObject("PartDesign::Mirrored", "Mirrored001")
body.addObject(mirrored2)
mirrored2.Originals = [pocket1, pocket2]
mirrored2.MirrorPlane = (datumplane2, [""])
body.Tip = mirrored2

# Sketch on an angled plane
sketch12 = doc.addObject("Sketcher::SketchObject", "Sketch011")
body.addObject(sketch12)
sketch12.Placement = App.Placement(Vector(-31.819805, -31.819805, 0), App.Rotation(Vector(0, 0, -1), Vector(0.707106781, -0.707106781, 0), Vector(-0.707106781, -0.707106781, 0), "ZXY"))
sketch12.addGeometry(Part.Circle(Vector(-5, -59, 0), Vector(0, 0, 1), 3), False)
sketch12.addConstraint(Sketcher.Constraint("Diameter", 0, 6.0))
sketch12.addConstraint(Sketcher.Constraint("DistanceX", 0, 3, -1, 1, 5.0))
sketch12.addConstraint(Sketcher.Constraint("DistanceY", 0, 3, -1, 1, 59.0))
pocket3 = doc.addObject("PartDesign::Pocket", "Pocket002")
body.addObject(pocket3)
pocket3.Profile = sketch12
pocket3.Length = 80

# Sketch on an angled plane
sketch13 = doc.addObject("Sketcher::SketchObject", "Sketch012")
body.addObject(sketch13)
sketch13.Placement = App.Placement(Vector(-31.819805, 31.819805, 0), App.Rotation(Vector(0, 0, -1), Vector(-0.707106781, -0.707106781, 0), Vector(-0.707106781, 0.707106781, 0), "ZXY"))
sketch13.addGeometry(Part.Circle(Vector(-5, 59, 0), Vector(0, 0, 1), 3), False)
sketch13.addConstraint(Sketcher.Constraint("Diameter", 0, 6.0))
sketch13.addConstraint(Sketcher.Constraint("DistanceX", 0, 3, -1, 1, 5.0))
sketch13.addConstraint(Sketcher.Constraint("DistanceY", -1, 1, 0, 3, 59.0))
pocket4 = doc.addObject("PartDesign::Pocket", "Pocket003")
body.addObject(pocket4)
pocket4.Profile = sketch13
pocket4.Length = 10

# Sketch on XY plane
sketch14 = doc.addObject("Sketcher::SketchObject", "Sketch013")
body.addObject(sketch14)
sketch14.AttachmentSupport = (doc.XY_Plane, [""])
sketch14.MapMode = "FlatFace"
sketch14.AttachmentOffset = App.Placement(Vector(0, 0, 30), App.Rotation())
sketch14.addGeometry(Part.LineSegment(Vector(40, 54, 0), Vector(29, 43, 0)), False)
sketch14.addGeometry(Part.LineSegment(Vector(29, 43, 0), Vector(43, 29, 0)), False)
sketch14.addGeometry(Part.LineSegment(Vector(43, 29, 0), Vector(54, 40, 0)), False)
sketch14.addGeometry(Part.LineSegment(Vector(54, 40, 0), Vector(40, 54, 0)), False)
sketch14.addGeometry(Part.LineSegment(Vector(54, -40, 0), Vector(43, -29, 0)), False)
sketch14.addGeometry(Part.LineSegment(Vector(43, -29, 0), Vector(29, -43, 0)), False)
sketch14.addGeometry(Part.LineSegment(Vector(29, -43, 0), Vector(40, -54, 0)), False)
sketch14.addGeometry(Part.LineSegment(Vector(40, -54, 0), Vector(54, -40, 0)), False)
sketch14.addGeometry(Part.LineSegment(Vector(-40, -54, 0), Vector(-29, -43, 0)), False)
sketch14.addGeometry(Part.LineSegment(Vector(-29, -43, 0), Vector(-43, -29, 0)), False)
sketch14.addGeometry(Part.LineSegment(Vector(-43, -29, 0), Vector(-54, -40, 0)), False)
sketch14.addGeometry(Part.LineSegment(Vector(-54, -40, 0), Vector(-40, -54, 0)), False)
sketch14.addGeometry(Part.LineSegment(Vector(-54, 40, 0), Vector(-43, 29, 0)), False)
sketch14.addGeometry(Part.LineSegment(Vector(-43, 29, 0), Vector(-29, 43, 0)), False)
sketch14.addGeometry(Part.LineSegment(Vector(-29, 43, 0), Vector(-40, 54, 0)), False)
sketch14.addGeometry(Part.LineSegment(Vector(-40, 54, 0), Vector(-54, 40, 0)), False)
sketch14.addConstraint(Sketcher.Constraint("Coincident", 0, 2, 1, 1))
sketch14.addConstraint(Sketcher.Constraint("Coincident", 1, 2, 2, 1))
sketch14.addConstraint(Sketcher.Constraint("Coincident", 2, 2, 3, 1))
sketch14.addConstraint(Sketcher.Constraint("Coincident", 3, 2, 0, 1))
sketch14.addConstraint(Sketcher.Constraint("Coincident", 4, 2, 5, 1))
sketch14.addConstraint(Sketcher.Constraint("Coincident", 5, 2, 6, 1))
sketch14.addConstraint(Sketcher.Constraint("Coincident", 6, 2, 7, 1))
sketch14.addConstraint(Sketcher.Constraint("Coincident", 7, 2, 4, 1))
sketch14.addConstraint(Sketcher.Constraint("Coincident", 8, 2, 9, 1))
sketch14.addConstraint(Sketcher.Constraint("Coincident", 9, 2, 10, 1))
sketch14.addConstraint(Sketcher.Constraint("Coincident", 10, 2, 11, 1))
sketch14.addConstraint(Sketcher.Constraint("Coincident", 11, 2, 8, 1))
sketch14.addConstraint(Sketcher.Constraint("Coincident", 12, 2, 13, 1))
sketch14.addConstraint(Sketcher.Constraint("Coincident", 13, 2, 14, 1))
sketch14.addConstraint(Sketcher.Constraint("Coincident", 14, 2, 15, 1))
sketch14.addConstraint(Sketcher.Constraint("Coincident", 15, 2, 12, 1))
sketch14.addConstraint(Sketcher.Constraint("Symmetric", 0, 2, 8, 2, -1, 1))
sketch14.addConstraint(Sketcher.Constraint("Symmetric", 1, 2, 9, 2, -1, 1))
sketch14.addConstraint(Sketcher.Constraint("Symmetric", 2, 2, 10, 2, -1, 1))
sketch14.addConstraint(Sketcher.Constraint("Symmetric", 3, 2, 11, 2, -1, 1))
sketch14.addConstraint(Sketcher.Constraint("Symmetric", 4, 2, 12, 2, -1, 1))
sketch14.addConstraint(Sketcher.Constraint("Symmetric", 5, 2, 13, 2, -1, 1))
sketch14.addConstraint(Sketcher.Constraint("Symmetric", 6, 2, 14, 2, -1, 1))
sketch14.addConstraint(Sketcher.Constraint("Symmetric", 7, 2, 15, 2, -1, 1))
sketch14.addConstraint(Sketcher.Constraint("Symmetric", 5, 2, 8, 2, -2))
sketch14.addConstraint(Sketcher.Constraint("Symmetric", 4, 2, 9, 2, -2))
sketch14.addConstraint(Sketcher.Constraint("Symmetric", 7, 2, 10, 2, -2))
sketch14.addConstraint(Sketcher.Constraint("Symmetric", 6, 2, 11, 2, -2))
sketch14.addConstraint(Sketcher.Constraint("Perpendicular", 0, 1))
sketch14.addConstraint(Sketcher.Constraint("Perpendicular", 1, 2))
sketch14.addConstraint(Sketcher.Constraint("Perpendicular", 2, 3))
sketch14.addConstraint(Sketcher.Constraint("Parallel", 3, 4))
sketch14.addConstraint(Sketcher.Constraint("Distance", 0, 15.0))
sketch14.addConstraint(Sketcher.Constraint("Distance", 1, 20.0))
sketch14.addConstraint(Sketcher.Constraint("DistanceY", 4, 2, 0, 2, 72.831998))
sketch14.addConstraint(Sketcher.Constraint("DistanceX", 8, 2, 4, 2, 72.831998))
pad10 = doc.addObject("PartDesign::Pad", "Pad009")
body.addObject(pad10)
pad10.Profile = sketch14
pad10.Length = 15

# Sketch on an angled plane
sketch15 = doc.addObject("Sketcher::SketchObject", "Sketch014")
body.addObject(sketch15)
sketch15.Placement = App.Placement(Vector(7.071068, -7.071068, 0), App.Rotation(Vector(0, 0, -1), Vector(0.707106781, 0.707106781, 0), Vector(0.707106781, -0.707106781, 0), "ZXY"))
sketch15.addGeometry(Part.Circle(Vector(-37.5, 59, 0), Vector(0, 0, 1), 3), False)
sketch15.addGeometry(Part.Circle(Vector(-37.5, -59, 0), Vector(0, 0, 1), 3), False)
sketch15.addConstraint(Sketcher.Constraint("Equal", 0, 1))
sketch15.addConstraint(Sketcher.Constraint("Symmetric", 0, 3, 1, 3, -1))
sketch15.addConstraint(Sketcher.Constraint("Diameter", 0, 6.0))
sketch15.addConstraint(Sketcher.Constraint("DistanceY", -1, 1, 0, 3, 59.0))
sketch15.addConstraint(Sketcher.Constraint("DistanceX", 0, 3, -1, 1, 37.5))
pocket5 = doc.addObject("PartDesign::Pocket", "Pocket004")
body.addObject(pocket5)
pocket5.Profile = sketch15
pocket5.Type = "ThroughAll"

# Sketch on an angled plane
sketch16 = doc.addObject("Sketcher::SketchObject", "Sketch015")
body.addObject(sketch16)
sketch16.Placement = App.Placement(Vector(-7.071068, -7.071068, 0), App.Rotation(Vector(0, 0, 1), Vector(-0.707106781, 0.707106781, 0), Vector(-0.707106781, -0.707106781, 0), "ZXY"))
sketch16.addGeometry(Part.Circle(Vector(37.5, -59, 0), Vector(0, 0, 1), 3), False)
sketch16.addGeometry(Part.Circle(Vector(37.5, 59, 0), Vector(0, 0, 1), 3), False)
sketch16.addConstraint(Sketcher.Constraint("Equal", 0, 1))
sketch16.addConstraint(Sketcher.Constraint("Symmetric", 0, 3, 1, 3, -1))
sketch16.addConstraint(Sketcher.Constraint("Diameter", 0, 6.0))
sketch16.addConstraint(Sketcher.Constraint("DistanceY", 0, 3, -1, 1, 59.0))
sketch16.addConstraint(Sketcher.Constraint("DistanceX", -1, 1, 0, 3, 37.5))
pocket6 = doc.addObject("PartDesign::Pocket", "Pocket005")
body.addObject(pocket6)
pocket6.Profile = sketch16
pocket6.Type = "ThroughAll"

doc.recompute()
